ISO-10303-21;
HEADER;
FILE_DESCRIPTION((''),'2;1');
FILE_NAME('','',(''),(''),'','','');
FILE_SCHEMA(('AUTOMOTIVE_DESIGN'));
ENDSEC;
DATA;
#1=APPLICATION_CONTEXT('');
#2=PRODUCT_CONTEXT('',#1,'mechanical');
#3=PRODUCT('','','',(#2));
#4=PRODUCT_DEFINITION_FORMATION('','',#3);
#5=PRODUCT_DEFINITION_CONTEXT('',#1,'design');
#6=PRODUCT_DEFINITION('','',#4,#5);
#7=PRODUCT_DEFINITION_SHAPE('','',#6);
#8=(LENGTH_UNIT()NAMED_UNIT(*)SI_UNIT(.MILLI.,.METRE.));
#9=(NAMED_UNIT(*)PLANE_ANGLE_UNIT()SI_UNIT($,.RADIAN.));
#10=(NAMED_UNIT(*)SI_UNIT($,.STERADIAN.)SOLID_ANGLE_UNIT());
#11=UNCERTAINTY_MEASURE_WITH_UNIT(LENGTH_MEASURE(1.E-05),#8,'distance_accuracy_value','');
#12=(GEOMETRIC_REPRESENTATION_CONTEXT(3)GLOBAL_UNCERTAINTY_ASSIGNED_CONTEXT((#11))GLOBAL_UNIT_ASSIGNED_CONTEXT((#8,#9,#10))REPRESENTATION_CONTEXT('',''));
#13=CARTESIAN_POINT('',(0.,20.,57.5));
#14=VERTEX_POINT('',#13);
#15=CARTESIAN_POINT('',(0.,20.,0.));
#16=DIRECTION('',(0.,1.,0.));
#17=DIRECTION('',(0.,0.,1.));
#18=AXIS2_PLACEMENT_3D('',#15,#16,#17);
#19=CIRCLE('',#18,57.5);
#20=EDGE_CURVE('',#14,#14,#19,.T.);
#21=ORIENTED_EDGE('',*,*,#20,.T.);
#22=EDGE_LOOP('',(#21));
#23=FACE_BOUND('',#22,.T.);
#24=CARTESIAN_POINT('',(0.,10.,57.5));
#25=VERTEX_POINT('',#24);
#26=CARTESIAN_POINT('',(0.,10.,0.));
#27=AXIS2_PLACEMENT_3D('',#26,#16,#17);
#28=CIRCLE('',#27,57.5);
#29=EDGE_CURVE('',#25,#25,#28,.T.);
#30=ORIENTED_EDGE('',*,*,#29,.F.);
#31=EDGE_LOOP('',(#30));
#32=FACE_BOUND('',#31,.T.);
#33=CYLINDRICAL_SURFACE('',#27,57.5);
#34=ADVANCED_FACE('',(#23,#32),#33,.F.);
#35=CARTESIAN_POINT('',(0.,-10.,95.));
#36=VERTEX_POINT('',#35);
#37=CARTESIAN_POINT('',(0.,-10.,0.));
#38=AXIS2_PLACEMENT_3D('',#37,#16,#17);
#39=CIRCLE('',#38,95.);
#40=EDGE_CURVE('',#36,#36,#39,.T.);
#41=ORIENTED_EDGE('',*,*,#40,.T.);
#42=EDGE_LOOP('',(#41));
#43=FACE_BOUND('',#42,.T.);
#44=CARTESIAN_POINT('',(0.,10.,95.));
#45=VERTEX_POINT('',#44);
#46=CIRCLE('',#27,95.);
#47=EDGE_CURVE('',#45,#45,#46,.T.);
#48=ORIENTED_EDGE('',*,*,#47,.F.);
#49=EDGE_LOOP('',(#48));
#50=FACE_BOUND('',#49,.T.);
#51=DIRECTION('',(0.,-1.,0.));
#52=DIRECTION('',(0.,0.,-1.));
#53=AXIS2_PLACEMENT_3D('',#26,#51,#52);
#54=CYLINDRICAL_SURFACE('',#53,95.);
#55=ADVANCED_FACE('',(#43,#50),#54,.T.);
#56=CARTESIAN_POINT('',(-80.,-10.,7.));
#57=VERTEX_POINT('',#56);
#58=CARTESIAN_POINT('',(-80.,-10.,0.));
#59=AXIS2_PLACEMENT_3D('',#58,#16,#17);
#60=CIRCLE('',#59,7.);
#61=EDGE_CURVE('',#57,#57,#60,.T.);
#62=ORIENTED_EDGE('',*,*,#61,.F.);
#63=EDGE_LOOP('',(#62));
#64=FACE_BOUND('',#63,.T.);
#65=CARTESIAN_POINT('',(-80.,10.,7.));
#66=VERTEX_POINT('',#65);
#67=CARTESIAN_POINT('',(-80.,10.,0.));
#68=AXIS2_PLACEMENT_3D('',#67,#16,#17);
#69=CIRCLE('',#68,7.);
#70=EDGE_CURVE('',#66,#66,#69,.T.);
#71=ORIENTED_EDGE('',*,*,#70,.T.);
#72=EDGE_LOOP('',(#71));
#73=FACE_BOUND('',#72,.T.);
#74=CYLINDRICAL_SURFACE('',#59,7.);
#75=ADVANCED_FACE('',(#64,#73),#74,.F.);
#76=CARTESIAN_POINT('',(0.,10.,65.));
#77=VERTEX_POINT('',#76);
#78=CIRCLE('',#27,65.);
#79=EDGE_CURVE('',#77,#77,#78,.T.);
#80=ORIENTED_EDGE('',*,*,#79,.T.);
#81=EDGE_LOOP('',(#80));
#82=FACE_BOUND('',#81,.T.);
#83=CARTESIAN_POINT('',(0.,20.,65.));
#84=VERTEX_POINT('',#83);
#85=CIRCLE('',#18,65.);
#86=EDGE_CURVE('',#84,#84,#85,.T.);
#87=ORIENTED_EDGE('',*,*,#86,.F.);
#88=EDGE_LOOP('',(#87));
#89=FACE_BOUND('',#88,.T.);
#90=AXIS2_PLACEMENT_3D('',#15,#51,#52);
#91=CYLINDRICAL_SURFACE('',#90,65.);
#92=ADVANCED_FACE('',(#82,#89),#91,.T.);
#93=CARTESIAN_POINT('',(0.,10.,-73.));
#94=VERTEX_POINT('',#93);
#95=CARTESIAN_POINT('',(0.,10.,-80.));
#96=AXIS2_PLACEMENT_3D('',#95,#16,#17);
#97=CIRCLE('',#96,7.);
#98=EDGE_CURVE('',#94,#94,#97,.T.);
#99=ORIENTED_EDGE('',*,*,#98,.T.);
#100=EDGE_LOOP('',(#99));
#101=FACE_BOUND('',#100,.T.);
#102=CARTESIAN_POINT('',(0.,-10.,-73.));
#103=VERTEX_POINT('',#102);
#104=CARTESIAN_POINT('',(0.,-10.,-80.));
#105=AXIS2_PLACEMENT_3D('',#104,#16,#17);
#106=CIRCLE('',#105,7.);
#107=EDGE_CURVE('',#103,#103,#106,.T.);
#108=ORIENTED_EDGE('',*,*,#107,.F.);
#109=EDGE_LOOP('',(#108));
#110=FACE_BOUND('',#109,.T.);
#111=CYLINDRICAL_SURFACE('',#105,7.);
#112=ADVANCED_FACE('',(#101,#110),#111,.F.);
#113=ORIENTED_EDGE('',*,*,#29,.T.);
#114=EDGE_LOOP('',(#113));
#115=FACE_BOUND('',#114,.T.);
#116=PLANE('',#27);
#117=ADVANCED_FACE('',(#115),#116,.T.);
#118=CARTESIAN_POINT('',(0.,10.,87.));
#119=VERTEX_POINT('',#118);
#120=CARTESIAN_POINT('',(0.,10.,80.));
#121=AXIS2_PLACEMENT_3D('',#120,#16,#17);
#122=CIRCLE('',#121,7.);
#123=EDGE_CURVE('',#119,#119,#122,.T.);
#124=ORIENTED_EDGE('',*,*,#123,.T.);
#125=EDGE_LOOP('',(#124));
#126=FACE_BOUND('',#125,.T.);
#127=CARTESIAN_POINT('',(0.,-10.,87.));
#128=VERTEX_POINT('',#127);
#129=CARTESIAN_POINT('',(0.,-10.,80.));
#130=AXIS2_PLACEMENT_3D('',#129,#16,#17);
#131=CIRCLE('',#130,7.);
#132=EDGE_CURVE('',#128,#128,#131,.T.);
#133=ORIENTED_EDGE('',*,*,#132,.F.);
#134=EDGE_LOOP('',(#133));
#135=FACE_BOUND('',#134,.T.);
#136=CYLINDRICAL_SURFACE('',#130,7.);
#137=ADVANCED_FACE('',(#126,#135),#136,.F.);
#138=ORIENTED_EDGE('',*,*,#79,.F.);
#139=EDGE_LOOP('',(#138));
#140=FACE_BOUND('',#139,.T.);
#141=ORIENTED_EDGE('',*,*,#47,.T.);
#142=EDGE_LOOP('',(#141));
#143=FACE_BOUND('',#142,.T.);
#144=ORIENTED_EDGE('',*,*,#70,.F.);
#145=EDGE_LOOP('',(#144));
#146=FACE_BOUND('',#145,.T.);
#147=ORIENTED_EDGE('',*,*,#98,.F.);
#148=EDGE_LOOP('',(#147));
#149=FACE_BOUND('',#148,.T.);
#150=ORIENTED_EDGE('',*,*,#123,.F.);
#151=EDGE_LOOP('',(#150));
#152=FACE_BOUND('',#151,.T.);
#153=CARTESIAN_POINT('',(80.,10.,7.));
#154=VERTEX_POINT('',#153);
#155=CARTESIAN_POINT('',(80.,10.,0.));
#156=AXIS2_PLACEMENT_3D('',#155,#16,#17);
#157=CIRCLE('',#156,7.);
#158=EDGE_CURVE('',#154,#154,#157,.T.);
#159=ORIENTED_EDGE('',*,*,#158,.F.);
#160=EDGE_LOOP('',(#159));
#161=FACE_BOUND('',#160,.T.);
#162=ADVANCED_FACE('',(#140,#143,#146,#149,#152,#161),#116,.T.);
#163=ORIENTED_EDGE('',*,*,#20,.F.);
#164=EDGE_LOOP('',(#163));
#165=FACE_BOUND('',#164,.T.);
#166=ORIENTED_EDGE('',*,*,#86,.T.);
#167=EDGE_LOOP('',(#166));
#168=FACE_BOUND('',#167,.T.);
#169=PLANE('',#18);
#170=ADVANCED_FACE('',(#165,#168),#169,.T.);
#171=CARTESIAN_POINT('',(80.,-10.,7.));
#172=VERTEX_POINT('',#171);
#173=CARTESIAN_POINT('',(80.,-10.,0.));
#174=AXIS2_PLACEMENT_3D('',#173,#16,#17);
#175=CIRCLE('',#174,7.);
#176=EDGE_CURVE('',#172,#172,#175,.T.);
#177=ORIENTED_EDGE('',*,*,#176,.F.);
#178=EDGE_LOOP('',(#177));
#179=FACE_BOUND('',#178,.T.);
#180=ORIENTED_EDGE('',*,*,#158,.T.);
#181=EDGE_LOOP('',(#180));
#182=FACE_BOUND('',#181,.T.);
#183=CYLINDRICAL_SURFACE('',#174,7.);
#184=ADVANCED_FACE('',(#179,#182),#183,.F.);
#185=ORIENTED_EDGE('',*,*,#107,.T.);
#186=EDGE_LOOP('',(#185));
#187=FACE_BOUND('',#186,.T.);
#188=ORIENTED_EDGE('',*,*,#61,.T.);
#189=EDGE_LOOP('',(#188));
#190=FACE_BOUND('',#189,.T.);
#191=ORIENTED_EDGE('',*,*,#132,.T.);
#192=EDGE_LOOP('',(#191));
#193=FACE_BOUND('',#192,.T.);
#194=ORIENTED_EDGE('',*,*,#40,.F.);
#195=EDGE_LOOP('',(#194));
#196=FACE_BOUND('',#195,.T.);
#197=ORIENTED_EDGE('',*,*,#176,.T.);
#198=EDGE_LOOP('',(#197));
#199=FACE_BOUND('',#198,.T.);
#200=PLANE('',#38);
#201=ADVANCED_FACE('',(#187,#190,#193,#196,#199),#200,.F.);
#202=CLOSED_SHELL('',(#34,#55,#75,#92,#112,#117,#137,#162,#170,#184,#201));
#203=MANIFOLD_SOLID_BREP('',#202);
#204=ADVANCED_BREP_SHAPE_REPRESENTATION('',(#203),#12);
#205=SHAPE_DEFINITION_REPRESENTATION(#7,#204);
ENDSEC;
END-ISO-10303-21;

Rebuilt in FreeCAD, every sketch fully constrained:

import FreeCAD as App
import Part
import Sketcher

V = App.Vector

doc = App.newDocument("Part")
body = doc.addObject("PartDesign::Body", "Body")

# Sketch on XZ plane
sketch1 = body.newObject("Sketcher::SketchObject", "Sketch")
sketch1.AttachmentSupport = (doc.getObject("XZ_Plane"), [""])
sketch1.MapMode = "FlatFace"
sketch1.addGeometry(Part.Circle(V(0, 0, 0), V(0, 0, 1), 95), False)
sketch1.addConstraint([
    Sketcher.Constraint("Coincident", 0, 3, -1, 1),
    Sketcher.Constraint("Diameter", 0, 190.0),
])
pad1 = body.newObject("PartDesign::Pad", "Pad")
pad1.Profile = sketch1
pad1.Length = 20
pad1.Midplane = True

# Sketch on XZ plane
sketch2 = body.newObject("Sketcher::SketchObject", "Sketch001")
sketch2.AttachmentSupport = (doc.getObject("XZ_Plane"), [""])
sketch2.MapMode = "FlatFace"
sketch2.AttachmentOffset = App.Placement(V(0, 0, -10), App.Rotation())
sketch2.addGeometry(Part.Circle(V(0, 0, 0), V(0, 0, 1), 65), False)
sketch2.addConstraint([
    Sketcher.Constraint("Coincident", 0, 3, -1, 1),
    Sketcher.Constraint("Diameter", 0, 130.0),
])
pad2 = body.newObject("PartDesign::Pad", "Pad001")
pad2.Profile = sketch2
pad2.Length = 10
pad2.Reversed = True

# Sketch on XZ plane
sketch3 = body.newObject("Sketcher::SketchObject", "Sketch002")
sketch3.AttachmentSupport = (doc.getObject("XZ_Plane"), [""])
sketch3.MapMode = "FlatFace"
sketch3.AttachmentOffset = App.Placement(V(0, 0, -20), App.Rotation())
sketch3.addGeometry(Part.Circle(V(0, 0, 0), V(0, 0, 1), 57.5), False)
sketch3.addConstraint([
    Sketcher.Constraint("Coincident", 0, 3, -1, 1),
    Sketcher.Constraint("Diameter", 0, 115.0),
])
pocket1 = body.newObject("PartDesign::Pocket", "Pocket")
pocket1.Profile = sketch3
pocket1.Length = 10
pocket1.Reversed = True

# Sketch on XZ plane
sketch4 = body.newObject("Sketcher::SketchObject", "Sketch003")
sketch4.AttachmentSupport = (doc.getObject("XZ_Plane"), [""])
sketch4.MapMode = "FlatFace"
sketch4.AttachmentOffset = App.Placement(V(0, 0, -10), App.Rotation())
sketch4.addGeometry([
    Part.Circle(V(0, -80, 0), V(0, 0, 1), 7),
    Part.Circle(V(80, 0, 0), V(0, 0, 1), 7),
    Part.Circle(V(0, 80, 0), V(0, 0, 1), 7),
    Part.Circle(V(-80, 0, 0), V(0, 0, 1), 7),
], False)
sketch4.addConstraint([
    Sketcher.Constraint("Equal", 0, 1),
    Sketcher.Constraint("Equal", 1, 2),
    Sketcher.Constraint("Equal", 2, 3),
    Sketcher.Constraint("Symmetric", 0, 3, 2, 3, -1, 1),
    Sketcher.Constraint("Symmetric", 1, 3, 3, 3, -1, 1),
    Sketcher.Constraint("PointOnObject", 0, 3, -2),
    Sketcher.Constraint("PointOnObject", 1, 3, -1),
    Sketcher.Constraint("Diameter", 0, 14.0),
    Sketcher.Constraint("DistanceY", 0, 3, -1, 1, 80.0),
    Sketcher.Constraint("DistanceX", -1, 1, 1, 3, 80.0),
])
pocket2 = body.newObject("PartDesign::Pocket", "Pocket001")
pocket2.Profile = sketch4
pocket2.Type = "ThroughAll"
pocket2.Reversed = True

doc.recompute()
